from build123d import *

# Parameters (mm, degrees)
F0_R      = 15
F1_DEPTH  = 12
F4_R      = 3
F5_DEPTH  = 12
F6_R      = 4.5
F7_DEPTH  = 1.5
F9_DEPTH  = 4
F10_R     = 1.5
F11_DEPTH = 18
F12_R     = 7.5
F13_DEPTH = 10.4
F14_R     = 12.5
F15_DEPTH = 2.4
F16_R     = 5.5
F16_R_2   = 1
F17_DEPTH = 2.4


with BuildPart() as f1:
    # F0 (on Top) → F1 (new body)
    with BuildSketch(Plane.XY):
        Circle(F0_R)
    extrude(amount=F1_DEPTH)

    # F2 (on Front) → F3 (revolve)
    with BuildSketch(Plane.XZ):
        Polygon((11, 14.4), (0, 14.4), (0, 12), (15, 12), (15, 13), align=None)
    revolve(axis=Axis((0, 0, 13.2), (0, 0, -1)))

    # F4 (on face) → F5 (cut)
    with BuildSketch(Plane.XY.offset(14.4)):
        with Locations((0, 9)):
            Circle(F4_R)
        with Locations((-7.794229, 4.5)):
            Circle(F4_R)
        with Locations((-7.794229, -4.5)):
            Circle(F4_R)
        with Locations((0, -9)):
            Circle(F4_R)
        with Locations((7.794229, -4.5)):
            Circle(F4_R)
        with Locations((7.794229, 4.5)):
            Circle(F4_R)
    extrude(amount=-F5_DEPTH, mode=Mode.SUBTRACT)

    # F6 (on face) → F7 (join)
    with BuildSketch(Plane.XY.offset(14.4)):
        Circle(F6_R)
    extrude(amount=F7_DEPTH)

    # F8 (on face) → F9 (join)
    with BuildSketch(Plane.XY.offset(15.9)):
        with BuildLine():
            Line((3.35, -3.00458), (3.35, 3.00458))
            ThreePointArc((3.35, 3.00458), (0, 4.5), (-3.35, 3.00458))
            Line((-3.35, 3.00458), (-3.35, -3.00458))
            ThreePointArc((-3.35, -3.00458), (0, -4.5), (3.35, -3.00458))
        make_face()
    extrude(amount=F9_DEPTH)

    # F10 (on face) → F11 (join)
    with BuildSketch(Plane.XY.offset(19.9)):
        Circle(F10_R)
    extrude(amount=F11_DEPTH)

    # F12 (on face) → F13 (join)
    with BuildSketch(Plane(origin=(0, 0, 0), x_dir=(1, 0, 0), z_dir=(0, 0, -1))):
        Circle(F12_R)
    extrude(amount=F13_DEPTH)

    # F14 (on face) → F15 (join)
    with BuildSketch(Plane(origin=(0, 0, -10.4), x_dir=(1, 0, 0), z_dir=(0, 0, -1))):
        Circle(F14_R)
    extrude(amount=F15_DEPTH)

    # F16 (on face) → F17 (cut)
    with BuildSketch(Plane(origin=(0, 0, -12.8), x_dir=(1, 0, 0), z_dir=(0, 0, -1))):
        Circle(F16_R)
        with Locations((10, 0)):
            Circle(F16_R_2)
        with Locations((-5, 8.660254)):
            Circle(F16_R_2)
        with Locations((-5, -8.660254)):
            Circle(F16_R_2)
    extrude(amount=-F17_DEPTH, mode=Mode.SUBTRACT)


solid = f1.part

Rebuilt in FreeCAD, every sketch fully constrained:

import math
import FreeCAD as App
import Part
import Sketcher

V = App.Vector


def add_polygon(sketch, points):
    """Adds a closed chain of lines whose ends are joined by coincident constraints."""
    first, n = sketch.GeometryCount, len(points)
    for a, b in zip(points, points[1:] + points[:1]):
        sketch.addGeometry(Part.LineSegment(App.Vector(*a, 0), App.Vector(*b, 0)), False)
    for i in range(n):
        sketch.addConstraint(Sketcher.Constraint("Coincident", first + i, 2, first + (i + 1) % n, 1))

doc = App.newDocument("Part")
body = doc.addObject("PartDesign::Body", "Body")

# Sketch on XY plane
sketch1 = body.newObject("Sketcher::SketchObject", "Sketch")
sketch1.AttachmentSupport = (doc.getObject("XY_Plane"), [""])
sketch1.MapMode = "FlatFace"
sketch1.addGeometry(Part.Circle(V(0, 0, 0), V(0, 0, 1), 15), False)
sketch1.addConstraint([
    Sketcher.Constraint("Coincident", 0, 3, -1, 1),
    Sketcher.Constraint("Diameter", 0, 30.0),
])
pad1 = body.newObject("PartDesign::Pad", "Pad")
pad1.Profile = sketch1
pad1.Length = 12

# Sketch on XZ plane
sketch2 = body.newObject("Sketcher::SketchObject", "Sketch001")
sketch2.AttachmentSupport = (doc.getObject("XZ_Plane"), [""])
sketch2.MapMode = "FlatFace"
add_polygon(sketch2, [(11, 14.4), (0, 14.4), (0, 12), (15, 12), (15, 13)])  # lines 0-4
sketch2.addConstraint([
    Sketcher.Constraint("Horizontal", 0),
    Sketcher.Constraint("Vertical", 1),
    Sketcher.Constraint("Horizontal", 2),
    Sketcher.Constraint("Vertical", 3),
    Sketcher.Constraint("PointOnObject", 0, 2, -2),
    Sketcher.Constraint("DistanceX", 0, 2, 0, 1, 11.0),
    Sketcher.Constraint("DistanceX", 2, 1, 2, 2, 15.0),
    Sketcher.Constraint("DistanceY", 3, 1, 3, 2, 1.0),
    Sketcher.Constraint("DistanceY", 1, 2, 1, 1, 2.4),
    Sketcher.Constraint("DistanceY", -1, 1, 1, 2, 12.0),
])
revolution = body.newObject("PartDesign::Revolution", "Revolution")
revolution.Profile = sketch2
revolution.ReferenceAxis = (sketch2, ["V_Axis"])
revolution.Angle = 360

# Sketch on XY plane
sketch3 = body.newObject("Sketcher::SketchObject", "Sketch002")
sketch3.AttachmentSupport = (doc.getObject("XY_Plane"), [""])
sketch3.MapMode = "FlatFace"
sketch3.AttachmentOffset = App.Placement(V(0, 0, 14.4), App.Rotation())
sketch3.addGeometry([
    Part.Circle(V(0, 9, 0), V(0, 0, 1), 3),  # 0
    Part.Circle(V(-7.794229, 4.5, 0), V(0, 0, 1), 3),  # 1
    Part.Circle(V(-7.794229, -4.5, 0), V(0, 0, 1), 3),  # 2
    Part.Circle(V(0, -9, 0), V(0, 0, 1), 3),  # 3
    Part.Circle(V(7.794229, -4.5, 0), V(0, 0, 1), 3),  # 4
    Part.Circle(V(7.794229, 4.5, 0), V(0, 0, 1), 3),  # 5
], False)
sketch3.addConstraint([
    Sketcher.Constraint("Equal", 0, 1),
    Sketcher.Constraint("Equal", 1, 2),
    Sketcher.Constraint("Equal", 2, 3),
    Sketcher.Constraint("Equal", 3, 4),
    Sketcher.Constraint("Equal", 4, 5),
    Sketcher.Constraint("Symmetric", 0, 3, 3, 3, -1, 1),
    Sketcher.Constraint("Symmetric", 1, 3, 4, 3, -1, 1),
    Sketcher.Constraint("Symmetric", 2, 3, 5, 3, -1, 1),
    Sketcher.Constraint("Symmetric", 2, 3, 4, 3, -2),
    Sketcher.Constraint("PointOnObject", 0, 3, -2),
    Sketcher.Constraint("Diameter", 0, 6.0),
    Sketcher.Constraint("DistanceY", -1, 1, 0, 3, 9.0),
    Sketcher.Constraint("DistanceY", 2, 3, 1, 3, 9.0),
    Sketcher.Constraint("DistanceX", 1, 3, -1, 1, 7.794229),
])
pocket1 = body.newObject("PartDesign::Pocket", "Pocket")
pocket1.Profile = sketch3
pocket1.Length = 12

# Sketch on XY plane
sketch4 = body.newObject("Sketcher::SketchObject", "Sketch003")
sketch4.AttachmentSupport = (doc.getObject("XY_Plane"), [""])
sketch4.MapMode = "FlatFace"
sketch4.AttachmentOffset = App.Placement(V(0, 0, 14.4), App.Rotation())
sketch4.addGeometry(Part.Circle(V(0, 0, 0), V(0, 0, 1), 4.5), False)
sketch4.addConstraint([
    Sketcher.Constraint("Coincident", 0, 3, -1, 1),
    Sketcher.Constraint("Diameter", 0, 9.0),
])
pad2 = body.newObject("PartDesign::Pad", "Pad001")
pad2.Profile = sketch4
pad2.Length = 1.5

# Sketch on XY plane
sketch5 = body.newObject("Sketcher::SketchObject", "Sketch004")
sketch5.AttachmentSupport = (doc.getObject("XY_Plane"), [""])
sketch5.MapMode = "FlatFace"
sketch5.AttachmentOffset = App.Placement(V(0, 0, 15.9), App.Rotation())
sketch5.addGeometry([
    Part.LineSegment(V(3.35, -3.00458, 0), V(3.35, 3.00458, 0)),
    Part.ArcOfCircle(Part.Circle(V(0, 0, 0), V(0, 0, 1), 4.5), math.radians(41.888602), math.radians(138.111398)),
    Part.LineSegment(V(-3.35, 3.00458, 0), V(-3.35, -3.00458, 0)),
    Part.ArcOfCircle(Part.Circle(V(0, 0, 0), V(0, 0, 1), 4.5), math.radians(-138.111398), math.radians(-41.888602)),
], False)
sketch5.addConstraint([
    Sketcher.Constraint("Coincident", 0, 2, 1, 1),
    Sketcher.Constraint("Coincident", 1, 2, 2, 1),
    Sketcher.Constraint("Coincident", 2, 2, 3, 1),
    Sketcher.Constraint("Coincident", 3, 2, 0, 1),
    Sketcher.Constraint("Vertical", 0),
    Sketcher.Constraint("Vertical", 2),
    Sketcher.Constraint("Coincident", 1, 3, -1, 1),
    Sketcher.Constraint("Coincident", 3, 3, -1, 1),
    Sketcher.Constraint("Equal", 1, 3),
    Sketcher.Constraint("Horizontal", 0, 2, 1, 2),
    Sketcher.Constraint("Radius", 1, 4.5),
    Sketcher.Constraint("DistanceX", 1, 2, 0, 2, 6.7),
])
pad3 = body.newObject("PartDesign::Pad", "Pad002")
pad3.Profile = sketch5
pad3.Length = 4

# Sketch on XY plane
sketch6 = body.newObject("Sketcher::SketchObject", "Sketch005")
sketch6.AttachmentSupport = (doc.getObject("XY_Plane"), [""])
sketch6.MapMode = "FlatFace"
sketch6.AttachmentOffset = App.Placement(V(0, 0, 19.9), App.Rotation())
sketch6.addGeometry(Part.Circle(V(0, 0, 0), V(0, 0, 1), 1.5), False)
sketch6.addConstraint([
    Sketcher.Constraint("Coincident", 0, 3, -1, 1),
    Sketcher.Constraint("Diameter", 0, 3.0),
])
pad4 = body.newObject("PartDesign::Pad", "Pad003")
pad4.Profile = sketch6
pad4.Length = 18

# Sketch on XY plane
sketch7 = body.newObject("Sketcher::SketchObject", "Sketch006")
sketch7.AttachmentSupport = (doc.getObject("XY_Plane"), [""])
sketch7.MapMode = "FlatFace"
sketch7.addGeometry(Part.Circle(V(0, 0, 0), V(0, 0, 1), 7.5), False)
sketch7.addConstraint([
    Sketcher.Constraint("Coincident", 0, 3, -1, 1),
    Sketcher.Constraint("Diameter", 0, 15.0),
])
pad5 = body.newObject("PartDesign::Pad", "Pad004")
pad5.Profile = sketch7
pad5.Length = 10.4
pad5.Reversed = True

# Sketch on XY plane
sketch8 = body.newObject("Sketcher::SketchObject", "Sketch007")
sketch8.AttachmentSupport = (doc.getObject("XY_Plane"), [""])
sketch8.MapMode = "FlatFace"
sketch8.AttachmentOffset = App.Placement(V(0, 0, -10.4), App.Rotation())
sketch8.addGeometry(Part.Circle(V(0, 0, 0), V(0, 0, 1), 12.5), False)
sketch8.addConstraint([
    Sketcher.Constraint("Coincident", 0, 3, -1, 1),
    Sketcher.Constraint("Diameter", 0, 25.0),
])
pad6 = body.newObject("PartDesign::Pad", "Pad005")
pad6.Profile = sketch8
pad6.Length = 2.4
pad6.Reversed = True

# Sketch on XY plane
sketch9 = body.newObject("Sketcher::SketchObject", "Sketch008")
sketch9.AttachmentSupport = (doc.getObject("XY_Plane"), [""])
sketch9.MapMode = "FlatFace"
sketch9.AttachmentOffset = App.Placement(V(0, 0, -12.8), App.Rotation())
sketch9.addGeometry([
    Part.Circle(V(0, 0, 0), V(0, 0, 1), 5.5),
    Part.Circle(V(10, 0, 0), V(0, 0, 1), 1),
    Part.Circle(V(-5, -8.660254, 0), V(0, 0, 1), 1),
    Part.Circle(V(-5, 8.660254, 0), V(0, 0, 1), 1),
], False)
sketch9.addConstraint([
    Sketcher.Constraint("Coincident", 0, 3, -1, 1),
    Sketcher.Constraint("Equal", 1, 2),
    Sketcher.Constraint("Equal", 2, 3),
    Sketcher.Constraint("Symmetric", 2, 3, 3, 3, -1),
    Sketcher.Constraint("PointOnObject", 1, 3, -1),
    Sketcher.Constraint("Diameter", 0, 11.0),
    Sketcher.Constraint("Diameter", 1, 2.0),
    Sketcher.Constraint("DistanceX", -1, 1, 1, 3, 10.0),
    Sketcher.Constraint("DistanceX", 2, 3, -1, 1, 5.0),
    Sketcher.Constraint("DistanceY", 2, 3, 3, 3, 17.320508),
])
pocket2 = body.newObject("PartDesign::Pocket", "Pocket001")
pocket2.Profile = sketch9
pocket2.Length = 2.4
pocket2.Reversed = True

doc.recompute()
